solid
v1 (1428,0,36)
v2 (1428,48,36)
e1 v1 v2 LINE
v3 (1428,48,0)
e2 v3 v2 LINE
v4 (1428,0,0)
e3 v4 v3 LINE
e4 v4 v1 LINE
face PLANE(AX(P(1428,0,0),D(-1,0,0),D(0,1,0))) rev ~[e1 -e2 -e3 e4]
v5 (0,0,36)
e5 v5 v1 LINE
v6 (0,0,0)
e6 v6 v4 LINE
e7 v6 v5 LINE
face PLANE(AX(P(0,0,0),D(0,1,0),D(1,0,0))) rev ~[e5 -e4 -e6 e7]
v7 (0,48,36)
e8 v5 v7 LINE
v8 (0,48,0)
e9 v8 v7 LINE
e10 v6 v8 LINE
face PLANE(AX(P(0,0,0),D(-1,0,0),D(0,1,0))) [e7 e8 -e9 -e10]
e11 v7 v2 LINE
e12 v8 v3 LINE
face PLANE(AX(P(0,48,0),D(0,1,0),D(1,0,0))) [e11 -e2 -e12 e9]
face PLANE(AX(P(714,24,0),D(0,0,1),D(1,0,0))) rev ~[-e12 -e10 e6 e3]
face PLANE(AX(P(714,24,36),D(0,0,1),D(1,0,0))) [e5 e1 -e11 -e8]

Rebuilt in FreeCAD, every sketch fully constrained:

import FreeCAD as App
import Part
import Sketcher


def add_polygon(sketch, points):
    """Adds a closed chain of lines whose ends are joined by coincident constraints."""
    first, n = sketch.GeometryCount, len(points)
    for a, b in zip(points, points[1:] + points[:1]):
        sketch.addGeometry(Part.LineSegment(App.Vector(*a, 0), App.Vector(*b, 0)), False)
    for i in range(n):
        sketch.addConstraint(Sketcher.Constraint("Coincident", first + i, 2, first + (i + 1) % n, 1))

doc = App.newDocument("Part")
params = doc.addObject("Spreadsheet::Sheet", "Params")
for row, (alias, value) in enumerate([
    ("sketch1_width", "1428 mm"),
    ("sketch1_height", "48 mm"),
    ("pad1_length", "36 mm"),
], start=1):
    params.set(f"A{row}", alias)
    params.set(f"B{row}", "=" + value)
    params.setAlias(f"B{row}", alias)

body = doc.addObject("PartDesign::Body", "Body")

# Sketch on XY plane
sketch1 = doc.addObject("Sketcher::SketchObject", "Sketch")
body.addObject(sketch1)
sketch1.AttachmentSupport = (doc.XY_Plane, [""])
sketch1.MapMode = "FlatFace"
add_polygon(sketch1, [(0, 48), (0, 0), (1428, 0), (1428, 48)])  # lines 0-3
sketch1.addConstraint([
    Sketcher.Constraint("Vertical", 0),
    Sketcher.Constraint("Horizontal", 1),
    Sketcher.Constraint("Vertical", 2),
    Sketcher.Constraint("Horizontal", 3),
    Sketcher.Constraint("Coincident", 0, 2, -1, 1),
    Sketcher.Constraint("DistanceX", 1, 1, 1, 2, 1428.0),
    Sketcher.Constraint("DistanceY", 0, 2, 0, 1, 48.0),
])
sketch1.setExpression("Constraints[9]", "Params.sketch1_width")
sketch1.setExpression("Constraints[10]", "Params.sketch1_height")
pad1 = doc.addObject("PartDesign::Pad", "Pad")
body.addObject(pad1)
pad1.Profile = sketch1
pad1.setExpression("Length", "Params.pad1_length")

doc.recompute()
